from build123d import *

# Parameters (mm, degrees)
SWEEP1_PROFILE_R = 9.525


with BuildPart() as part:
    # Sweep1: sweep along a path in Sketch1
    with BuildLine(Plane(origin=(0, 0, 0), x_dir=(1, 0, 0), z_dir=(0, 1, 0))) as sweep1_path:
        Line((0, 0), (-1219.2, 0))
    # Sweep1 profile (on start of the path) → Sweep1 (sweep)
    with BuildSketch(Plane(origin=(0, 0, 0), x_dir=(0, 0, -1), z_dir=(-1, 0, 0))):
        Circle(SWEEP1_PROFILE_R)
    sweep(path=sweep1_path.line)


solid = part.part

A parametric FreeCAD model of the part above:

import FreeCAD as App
import Part
import Sketcher
from FreeCAD import Vector
Q = App.Units.Quantity

doc = App.newDocument("Part")
params = doc.addObject("Spreadsheet::Sheet", "Params")
for row, (alias, value) in enumerate([
    ("sketch1_diameter", "0.75 in"),
    ("sketch2_width", "48 in"),
], start=1):
    params.set(f"A{row}", alias)
    params.set(f"B{row}", "=" + value)
    params.setAlias(f"B{row}", alias)

body = doc.addObject("PartDesign::Body", "Body")

# Sketch on YZ plane
sketch1 = body.newObject("Sketcher::SketchObject", "Sketch")
sketch1.AttachmentSupport = (doc.getObject("YZ_Plane"), [""])
sketch1.MapMode = "FlatFace"
sketch1.addGeometry(Part.Circle(Vector(0, 0, 0), Vector(0, 0, 1), 9.525), False)
sketch1.addConstraint([
    Sketcher.Constraint("Coincident", 0, 3, -1, 1),
    Sketcher.Constraint("Diameter", 0, Q("0.75 in")),
])
sketch1.setExpression("Constraints[1]", "Params.sketch1_diameter")

# Sketch on XY plane
sketch2 = body.newObject("Sketcher::SketchObject", "Sketch001")
sketch2.AttachmentSupport = (doc.getObject("XY_Plane"), [""])
sketch2.MapMode = "FlatFace"
sketch2.addGeometry(Part.LineSegment(Vector(0, 0, 0), Vector(-1219.2, 0, 0)), False)
sketch2.addConstraint([
    Sketcher.Constraint("Horizontal", 0),
    Sketcher.Constraint("Coincident", 0, 1, -1, 1),
    Sketcher.Constraint("DistanceX", 0, 2, 0, 1, Q("48 in")),
])
sketch2.setExpression("Constraints[2]", "Params.sketch2_width")
doc.recompute()

additivepipe = body.newObject("PartDesign::AdditivePipe", "AdditivePipe")
additivepipe.Profile = sketch1
additivepipe.Spine = (sketch2, ["Edge1"])

doc.recompute()
